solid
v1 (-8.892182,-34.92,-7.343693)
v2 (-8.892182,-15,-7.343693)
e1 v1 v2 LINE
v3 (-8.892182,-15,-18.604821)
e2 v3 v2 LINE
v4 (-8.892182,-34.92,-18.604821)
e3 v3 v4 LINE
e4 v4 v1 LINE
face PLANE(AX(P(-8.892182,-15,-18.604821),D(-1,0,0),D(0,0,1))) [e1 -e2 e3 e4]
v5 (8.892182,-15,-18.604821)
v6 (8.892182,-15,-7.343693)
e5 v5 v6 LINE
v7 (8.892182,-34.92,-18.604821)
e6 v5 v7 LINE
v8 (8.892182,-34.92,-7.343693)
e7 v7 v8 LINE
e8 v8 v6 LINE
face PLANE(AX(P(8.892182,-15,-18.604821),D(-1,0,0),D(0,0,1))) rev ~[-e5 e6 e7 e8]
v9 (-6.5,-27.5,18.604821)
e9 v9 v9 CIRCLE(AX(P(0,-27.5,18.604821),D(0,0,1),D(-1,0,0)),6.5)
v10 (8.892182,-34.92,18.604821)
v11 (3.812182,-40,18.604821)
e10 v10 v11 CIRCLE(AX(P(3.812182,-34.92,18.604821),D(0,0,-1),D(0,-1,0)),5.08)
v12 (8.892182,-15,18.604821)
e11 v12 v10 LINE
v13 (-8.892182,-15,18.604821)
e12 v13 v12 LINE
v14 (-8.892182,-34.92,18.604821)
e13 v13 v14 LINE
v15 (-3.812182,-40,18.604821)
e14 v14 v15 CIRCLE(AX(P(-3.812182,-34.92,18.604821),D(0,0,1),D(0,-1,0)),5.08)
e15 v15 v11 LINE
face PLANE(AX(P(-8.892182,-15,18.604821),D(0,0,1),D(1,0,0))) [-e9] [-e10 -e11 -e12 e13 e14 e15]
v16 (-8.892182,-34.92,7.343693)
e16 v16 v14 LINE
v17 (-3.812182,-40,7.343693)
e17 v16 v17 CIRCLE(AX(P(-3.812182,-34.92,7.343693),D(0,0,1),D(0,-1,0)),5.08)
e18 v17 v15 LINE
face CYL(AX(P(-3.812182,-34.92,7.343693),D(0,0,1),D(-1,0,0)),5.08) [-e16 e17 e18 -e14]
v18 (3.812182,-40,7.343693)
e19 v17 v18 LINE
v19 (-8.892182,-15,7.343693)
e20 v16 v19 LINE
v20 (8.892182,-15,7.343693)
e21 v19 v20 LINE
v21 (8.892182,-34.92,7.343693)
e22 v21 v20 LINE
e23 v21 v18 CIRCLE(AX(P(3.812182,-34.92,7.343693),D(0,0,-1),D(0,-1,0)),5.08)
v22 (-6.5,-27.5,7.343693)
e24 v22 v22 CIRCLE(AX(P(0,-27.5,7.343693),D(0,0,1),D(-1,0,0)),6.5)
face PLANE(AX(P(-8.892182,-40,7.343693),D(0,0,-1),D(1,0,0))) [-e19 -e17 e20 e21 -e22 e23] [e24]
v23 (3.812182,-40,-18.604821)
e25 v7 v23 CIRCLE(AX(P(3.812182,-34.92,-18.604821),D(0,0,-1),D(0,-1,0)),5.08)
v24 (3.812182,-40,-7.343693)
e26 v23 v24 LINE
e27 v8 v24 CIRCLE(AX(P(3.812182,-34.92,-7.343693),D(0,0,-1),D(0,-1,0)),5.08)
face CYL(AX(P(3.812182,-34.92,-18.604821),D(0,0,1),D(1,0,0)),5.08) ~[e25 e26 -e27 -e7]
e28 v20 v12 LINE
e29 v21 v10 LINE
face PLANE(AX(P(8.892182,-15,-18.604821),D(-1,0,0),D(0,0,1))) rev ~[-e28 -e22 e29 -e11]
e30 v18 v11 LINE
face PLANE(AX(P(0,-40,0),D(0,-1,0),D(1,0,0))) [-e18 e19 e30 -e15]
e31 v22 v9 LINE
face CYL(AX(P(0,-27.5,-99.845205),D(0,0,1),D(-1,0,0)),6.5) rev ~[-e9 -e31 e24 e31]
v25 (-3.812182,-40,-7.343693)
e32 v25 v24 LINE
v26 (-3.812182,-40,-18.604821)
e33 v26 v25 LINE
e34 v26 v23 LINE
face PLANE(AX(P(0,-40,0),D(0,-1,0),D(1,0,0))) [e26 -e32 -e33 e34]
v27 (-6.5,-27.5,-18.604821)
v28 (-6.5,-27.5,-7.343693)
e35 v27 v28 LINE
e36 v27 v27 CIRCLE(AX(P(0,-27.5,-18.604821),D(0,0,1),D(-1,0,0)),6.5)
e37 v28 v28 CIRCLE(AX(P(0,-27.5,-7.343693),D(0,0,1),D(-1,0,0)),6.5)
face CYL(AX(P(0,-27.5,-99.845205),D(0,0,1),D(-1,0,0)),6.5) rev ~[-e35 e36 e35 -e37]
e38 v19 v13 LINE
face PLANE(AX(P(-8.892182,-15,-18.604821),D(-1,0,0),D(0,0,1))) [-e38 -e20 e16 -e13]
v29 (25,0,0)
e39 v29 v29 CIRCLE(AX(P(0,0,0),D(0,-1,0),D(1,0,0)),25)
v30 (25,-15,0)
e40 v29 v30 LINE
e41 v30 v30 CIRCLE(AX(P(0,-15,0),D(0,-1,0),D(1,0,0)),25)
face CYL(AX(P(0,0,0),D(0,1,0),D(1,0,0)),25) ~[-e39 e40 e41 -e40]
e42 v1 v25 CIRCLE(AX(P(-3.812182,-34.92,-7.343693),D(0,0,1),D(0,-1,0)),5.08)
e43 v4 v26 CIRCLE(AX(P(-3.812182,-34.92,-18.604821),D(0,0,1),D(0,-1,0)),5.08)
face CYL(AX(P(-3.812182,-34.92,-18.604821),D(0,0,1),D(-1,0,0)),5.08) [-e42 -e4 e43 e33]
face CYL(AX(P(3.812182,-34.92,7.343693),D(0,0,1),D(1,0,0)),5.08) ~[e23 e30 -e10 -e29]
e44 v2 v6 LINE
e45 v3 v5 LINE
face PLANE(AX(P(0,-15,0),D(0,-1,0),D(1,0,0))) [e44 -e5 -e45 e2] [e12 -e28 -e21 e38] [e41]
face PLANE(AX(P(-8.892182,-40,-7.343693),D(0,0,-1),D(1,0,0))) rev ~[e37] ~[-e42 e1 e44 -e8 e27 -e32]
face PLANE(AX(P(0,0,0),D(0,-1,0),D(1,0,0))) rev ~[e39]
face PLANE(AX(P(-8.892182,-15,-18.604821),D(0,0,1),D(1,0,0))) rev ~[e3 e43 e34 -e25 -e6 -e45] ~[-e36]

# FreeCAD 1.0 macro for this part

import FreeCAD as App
import Part
import Sketcher

V = App.Vector


def edges_at(feature, points):
    """Names of the edges that pass closest to the given points."""
    edges = feature.Shape.Edges
    near = lambda p: min(range(len(edges)), key=lambda i: edges[i].distToShape(Part.Vertex(*p))[0])
    return sorted({f"Edge{near(p) + 1}" for p in points})


def add_polygon(sketch, points):
    """Adds a closed chain of lines whose ends are joined by coincident constraints."""
    first, n = sketch.GeometryCount, len(points)
    for a, b in zip(points, points[1:] + points[:1]):
        sketch.addGeometry(Part.LineSegment(App.Vector(*a, 0), App.Vector(*b, 0)), False)
    for i in range(n):
        sketch.addConstraint(Sketcher.Constraint("Coincident", first + i, 2, first + (i + 1) % n, 1))

doc = App.newDocument("Part")
body = doc.addObject("PartDesign::Body", "Body")

sketch1 = doc.addObject("Sketcher::SketchObject", "Sketch")
body.addObject(sketch1)
sketch1.AttachmentSupport = (doc.XZ_Plane, [""])
sketch1.MapMode = "FlatFace"
sketch1.addGeometry(Part.Circle(V(0, 0, 0), V(0, 0, 1), 25), False)
sketch1.addConstraint(Sketcher.Constraint("Coincident", 0, 3, -1, 1))
sketch1.addConstraint(Sketcher.Constraint("Diameter", 0, 50.0))
pad1 = doc.addObject("PartDesign::Pad", "Pad")
body.addObject(pad1)
pad1.Profile = sketch1
pad1.Length = 15

sketch2 = doc.addObject("Sketcher::SketchObject", "Sketch001")
body.addObject(sketch2)
sketch2.AttachmentSupport = (doc.XZ_Plane, [""])
sketch2.MapMode = "FlatFace"
sketch2.AttachmentOffset = App.Placement(V(0, 0, 15), App.Rotation())
add_polygon(sketch2, [(-9, 19), (-9, -19), (9, -19), (9, 19)])
sketch2.addConstraint(Sketcher.Constraint("Vertical", 0))
sketch2.addConstraint(Sketcher.Constraint("Horizontal", 1))
sketch2.addConstraint(Sketcher.Constraint("Vertical", 2))
sketch2.addConstraint(Sketcher.Constraint("Horizontal", 3))
sketch2.addConstraint(Sketcher.Constraint("Symmetric", 0, 2, 2, 2, -1, 1))
sketch2.addConstraint(Sketcher.Constraint("DistanceX", 1, 1, 1, 2, 17.784364))
sketch2.addConstraint(Sketcher.Constraint("DistanceY", 0, 2, 0, 1, 37.209642))
pad2 = doc.addObject("PartDesign::Pad", "Pad001")
body.addObject(pad2)
pad2.Profile = sketch2
pad2.Length = 25

sketch3 = doc.addObject("Sketcher::SketchObject", "Sketch002")
body.addObject(sketch3)
sketch3.AttachmentSupport = (doc.XY_Plane, [""])
sketch3.MapMode = "FlatFace"
sketch3.AttachmentOffset = App.Placement(V(0, 0, -18.604821), App.Rotation())
sketch3.addGeometry(Part.Circle(V(0, -28, 0), V(0, 0, 1), 6), False)
sketch3.addConstraint(Sketcher.Constraint("PointOnObject", 0, 3, -2))
sketch3.addConstraint(Sketcher.Constraint("Diameter", 0, 13.0))
sketch3.addConstraint(Sketcher.Constraint("DistanceY", 0, 3, -1, 1, 27.5))
doc.recompute()
hole = doc.addObject("PartDesign::Hole", "Hole")
body.addObject(hole)
hole.Profile = sketch3
hole.ThreadType = "None"
hole.Diameter = 13
hole.DepthType = "ThroughAll"
hole.Reversed = True

sketch4 = doc.addObject("Sketcher::SketchObject", "Sketch003")
body.addObject(sketch4)
sketch4.AttachmentSupport = (doc.XZ_Plane, [""])
sketch4.MapMode = "FlatFace"
sketch4.AttachmentOffset = App.Placement(V(0, 0, 40), App.Rotation())
add_polygon(sketch4, [(-9, 7), (-9, -7), (9, -7), (9, 7)])
sketch4.addConstraint(Sketcher.Constraint("Vertical", 0))
sketch4.addConstraint(Sketcher.Constraint("Horizontal", 1))
sketch4.addConstraint(Sketcher.Constraint("Vertical", 2))
sketch4.addConstraint(Sketcher.Constraint("Horizontal", 3))
sketch4.addConstraint(Sketcher.Constraint("Symmetric", 0, 2, 2, 2, -1, 1))
sketch4.addConstraint(Sketcher.Constraint("DistanceX", 1, 1, 1, 2, 17.784364))
sketch4.addConstraint(Sketcher.Constraint("DistanceY", 0, 2, 0, 1, 14.687386))
pocket1 = doc.addObject("PartDesign::Pocket", "Pocket")
body.addObject(pocket1)
pocket1.Profile = sketch4
pocket1.Length = 25
doc.recompute()

fillet = doc.addObject("PartDesign::Fillet", "Fillet")
body.addObject(fillet)
fillet.Base = (pocket1, edges_at(pocket1, [
    (8.892, -40, -12.974),
    (8.892, -40, 12.974),
    (-8.892, -40, 12.974),
    (-8.892, -40, -12.974),
]))
fillet.Radius = 5.08

doc.recompute()
